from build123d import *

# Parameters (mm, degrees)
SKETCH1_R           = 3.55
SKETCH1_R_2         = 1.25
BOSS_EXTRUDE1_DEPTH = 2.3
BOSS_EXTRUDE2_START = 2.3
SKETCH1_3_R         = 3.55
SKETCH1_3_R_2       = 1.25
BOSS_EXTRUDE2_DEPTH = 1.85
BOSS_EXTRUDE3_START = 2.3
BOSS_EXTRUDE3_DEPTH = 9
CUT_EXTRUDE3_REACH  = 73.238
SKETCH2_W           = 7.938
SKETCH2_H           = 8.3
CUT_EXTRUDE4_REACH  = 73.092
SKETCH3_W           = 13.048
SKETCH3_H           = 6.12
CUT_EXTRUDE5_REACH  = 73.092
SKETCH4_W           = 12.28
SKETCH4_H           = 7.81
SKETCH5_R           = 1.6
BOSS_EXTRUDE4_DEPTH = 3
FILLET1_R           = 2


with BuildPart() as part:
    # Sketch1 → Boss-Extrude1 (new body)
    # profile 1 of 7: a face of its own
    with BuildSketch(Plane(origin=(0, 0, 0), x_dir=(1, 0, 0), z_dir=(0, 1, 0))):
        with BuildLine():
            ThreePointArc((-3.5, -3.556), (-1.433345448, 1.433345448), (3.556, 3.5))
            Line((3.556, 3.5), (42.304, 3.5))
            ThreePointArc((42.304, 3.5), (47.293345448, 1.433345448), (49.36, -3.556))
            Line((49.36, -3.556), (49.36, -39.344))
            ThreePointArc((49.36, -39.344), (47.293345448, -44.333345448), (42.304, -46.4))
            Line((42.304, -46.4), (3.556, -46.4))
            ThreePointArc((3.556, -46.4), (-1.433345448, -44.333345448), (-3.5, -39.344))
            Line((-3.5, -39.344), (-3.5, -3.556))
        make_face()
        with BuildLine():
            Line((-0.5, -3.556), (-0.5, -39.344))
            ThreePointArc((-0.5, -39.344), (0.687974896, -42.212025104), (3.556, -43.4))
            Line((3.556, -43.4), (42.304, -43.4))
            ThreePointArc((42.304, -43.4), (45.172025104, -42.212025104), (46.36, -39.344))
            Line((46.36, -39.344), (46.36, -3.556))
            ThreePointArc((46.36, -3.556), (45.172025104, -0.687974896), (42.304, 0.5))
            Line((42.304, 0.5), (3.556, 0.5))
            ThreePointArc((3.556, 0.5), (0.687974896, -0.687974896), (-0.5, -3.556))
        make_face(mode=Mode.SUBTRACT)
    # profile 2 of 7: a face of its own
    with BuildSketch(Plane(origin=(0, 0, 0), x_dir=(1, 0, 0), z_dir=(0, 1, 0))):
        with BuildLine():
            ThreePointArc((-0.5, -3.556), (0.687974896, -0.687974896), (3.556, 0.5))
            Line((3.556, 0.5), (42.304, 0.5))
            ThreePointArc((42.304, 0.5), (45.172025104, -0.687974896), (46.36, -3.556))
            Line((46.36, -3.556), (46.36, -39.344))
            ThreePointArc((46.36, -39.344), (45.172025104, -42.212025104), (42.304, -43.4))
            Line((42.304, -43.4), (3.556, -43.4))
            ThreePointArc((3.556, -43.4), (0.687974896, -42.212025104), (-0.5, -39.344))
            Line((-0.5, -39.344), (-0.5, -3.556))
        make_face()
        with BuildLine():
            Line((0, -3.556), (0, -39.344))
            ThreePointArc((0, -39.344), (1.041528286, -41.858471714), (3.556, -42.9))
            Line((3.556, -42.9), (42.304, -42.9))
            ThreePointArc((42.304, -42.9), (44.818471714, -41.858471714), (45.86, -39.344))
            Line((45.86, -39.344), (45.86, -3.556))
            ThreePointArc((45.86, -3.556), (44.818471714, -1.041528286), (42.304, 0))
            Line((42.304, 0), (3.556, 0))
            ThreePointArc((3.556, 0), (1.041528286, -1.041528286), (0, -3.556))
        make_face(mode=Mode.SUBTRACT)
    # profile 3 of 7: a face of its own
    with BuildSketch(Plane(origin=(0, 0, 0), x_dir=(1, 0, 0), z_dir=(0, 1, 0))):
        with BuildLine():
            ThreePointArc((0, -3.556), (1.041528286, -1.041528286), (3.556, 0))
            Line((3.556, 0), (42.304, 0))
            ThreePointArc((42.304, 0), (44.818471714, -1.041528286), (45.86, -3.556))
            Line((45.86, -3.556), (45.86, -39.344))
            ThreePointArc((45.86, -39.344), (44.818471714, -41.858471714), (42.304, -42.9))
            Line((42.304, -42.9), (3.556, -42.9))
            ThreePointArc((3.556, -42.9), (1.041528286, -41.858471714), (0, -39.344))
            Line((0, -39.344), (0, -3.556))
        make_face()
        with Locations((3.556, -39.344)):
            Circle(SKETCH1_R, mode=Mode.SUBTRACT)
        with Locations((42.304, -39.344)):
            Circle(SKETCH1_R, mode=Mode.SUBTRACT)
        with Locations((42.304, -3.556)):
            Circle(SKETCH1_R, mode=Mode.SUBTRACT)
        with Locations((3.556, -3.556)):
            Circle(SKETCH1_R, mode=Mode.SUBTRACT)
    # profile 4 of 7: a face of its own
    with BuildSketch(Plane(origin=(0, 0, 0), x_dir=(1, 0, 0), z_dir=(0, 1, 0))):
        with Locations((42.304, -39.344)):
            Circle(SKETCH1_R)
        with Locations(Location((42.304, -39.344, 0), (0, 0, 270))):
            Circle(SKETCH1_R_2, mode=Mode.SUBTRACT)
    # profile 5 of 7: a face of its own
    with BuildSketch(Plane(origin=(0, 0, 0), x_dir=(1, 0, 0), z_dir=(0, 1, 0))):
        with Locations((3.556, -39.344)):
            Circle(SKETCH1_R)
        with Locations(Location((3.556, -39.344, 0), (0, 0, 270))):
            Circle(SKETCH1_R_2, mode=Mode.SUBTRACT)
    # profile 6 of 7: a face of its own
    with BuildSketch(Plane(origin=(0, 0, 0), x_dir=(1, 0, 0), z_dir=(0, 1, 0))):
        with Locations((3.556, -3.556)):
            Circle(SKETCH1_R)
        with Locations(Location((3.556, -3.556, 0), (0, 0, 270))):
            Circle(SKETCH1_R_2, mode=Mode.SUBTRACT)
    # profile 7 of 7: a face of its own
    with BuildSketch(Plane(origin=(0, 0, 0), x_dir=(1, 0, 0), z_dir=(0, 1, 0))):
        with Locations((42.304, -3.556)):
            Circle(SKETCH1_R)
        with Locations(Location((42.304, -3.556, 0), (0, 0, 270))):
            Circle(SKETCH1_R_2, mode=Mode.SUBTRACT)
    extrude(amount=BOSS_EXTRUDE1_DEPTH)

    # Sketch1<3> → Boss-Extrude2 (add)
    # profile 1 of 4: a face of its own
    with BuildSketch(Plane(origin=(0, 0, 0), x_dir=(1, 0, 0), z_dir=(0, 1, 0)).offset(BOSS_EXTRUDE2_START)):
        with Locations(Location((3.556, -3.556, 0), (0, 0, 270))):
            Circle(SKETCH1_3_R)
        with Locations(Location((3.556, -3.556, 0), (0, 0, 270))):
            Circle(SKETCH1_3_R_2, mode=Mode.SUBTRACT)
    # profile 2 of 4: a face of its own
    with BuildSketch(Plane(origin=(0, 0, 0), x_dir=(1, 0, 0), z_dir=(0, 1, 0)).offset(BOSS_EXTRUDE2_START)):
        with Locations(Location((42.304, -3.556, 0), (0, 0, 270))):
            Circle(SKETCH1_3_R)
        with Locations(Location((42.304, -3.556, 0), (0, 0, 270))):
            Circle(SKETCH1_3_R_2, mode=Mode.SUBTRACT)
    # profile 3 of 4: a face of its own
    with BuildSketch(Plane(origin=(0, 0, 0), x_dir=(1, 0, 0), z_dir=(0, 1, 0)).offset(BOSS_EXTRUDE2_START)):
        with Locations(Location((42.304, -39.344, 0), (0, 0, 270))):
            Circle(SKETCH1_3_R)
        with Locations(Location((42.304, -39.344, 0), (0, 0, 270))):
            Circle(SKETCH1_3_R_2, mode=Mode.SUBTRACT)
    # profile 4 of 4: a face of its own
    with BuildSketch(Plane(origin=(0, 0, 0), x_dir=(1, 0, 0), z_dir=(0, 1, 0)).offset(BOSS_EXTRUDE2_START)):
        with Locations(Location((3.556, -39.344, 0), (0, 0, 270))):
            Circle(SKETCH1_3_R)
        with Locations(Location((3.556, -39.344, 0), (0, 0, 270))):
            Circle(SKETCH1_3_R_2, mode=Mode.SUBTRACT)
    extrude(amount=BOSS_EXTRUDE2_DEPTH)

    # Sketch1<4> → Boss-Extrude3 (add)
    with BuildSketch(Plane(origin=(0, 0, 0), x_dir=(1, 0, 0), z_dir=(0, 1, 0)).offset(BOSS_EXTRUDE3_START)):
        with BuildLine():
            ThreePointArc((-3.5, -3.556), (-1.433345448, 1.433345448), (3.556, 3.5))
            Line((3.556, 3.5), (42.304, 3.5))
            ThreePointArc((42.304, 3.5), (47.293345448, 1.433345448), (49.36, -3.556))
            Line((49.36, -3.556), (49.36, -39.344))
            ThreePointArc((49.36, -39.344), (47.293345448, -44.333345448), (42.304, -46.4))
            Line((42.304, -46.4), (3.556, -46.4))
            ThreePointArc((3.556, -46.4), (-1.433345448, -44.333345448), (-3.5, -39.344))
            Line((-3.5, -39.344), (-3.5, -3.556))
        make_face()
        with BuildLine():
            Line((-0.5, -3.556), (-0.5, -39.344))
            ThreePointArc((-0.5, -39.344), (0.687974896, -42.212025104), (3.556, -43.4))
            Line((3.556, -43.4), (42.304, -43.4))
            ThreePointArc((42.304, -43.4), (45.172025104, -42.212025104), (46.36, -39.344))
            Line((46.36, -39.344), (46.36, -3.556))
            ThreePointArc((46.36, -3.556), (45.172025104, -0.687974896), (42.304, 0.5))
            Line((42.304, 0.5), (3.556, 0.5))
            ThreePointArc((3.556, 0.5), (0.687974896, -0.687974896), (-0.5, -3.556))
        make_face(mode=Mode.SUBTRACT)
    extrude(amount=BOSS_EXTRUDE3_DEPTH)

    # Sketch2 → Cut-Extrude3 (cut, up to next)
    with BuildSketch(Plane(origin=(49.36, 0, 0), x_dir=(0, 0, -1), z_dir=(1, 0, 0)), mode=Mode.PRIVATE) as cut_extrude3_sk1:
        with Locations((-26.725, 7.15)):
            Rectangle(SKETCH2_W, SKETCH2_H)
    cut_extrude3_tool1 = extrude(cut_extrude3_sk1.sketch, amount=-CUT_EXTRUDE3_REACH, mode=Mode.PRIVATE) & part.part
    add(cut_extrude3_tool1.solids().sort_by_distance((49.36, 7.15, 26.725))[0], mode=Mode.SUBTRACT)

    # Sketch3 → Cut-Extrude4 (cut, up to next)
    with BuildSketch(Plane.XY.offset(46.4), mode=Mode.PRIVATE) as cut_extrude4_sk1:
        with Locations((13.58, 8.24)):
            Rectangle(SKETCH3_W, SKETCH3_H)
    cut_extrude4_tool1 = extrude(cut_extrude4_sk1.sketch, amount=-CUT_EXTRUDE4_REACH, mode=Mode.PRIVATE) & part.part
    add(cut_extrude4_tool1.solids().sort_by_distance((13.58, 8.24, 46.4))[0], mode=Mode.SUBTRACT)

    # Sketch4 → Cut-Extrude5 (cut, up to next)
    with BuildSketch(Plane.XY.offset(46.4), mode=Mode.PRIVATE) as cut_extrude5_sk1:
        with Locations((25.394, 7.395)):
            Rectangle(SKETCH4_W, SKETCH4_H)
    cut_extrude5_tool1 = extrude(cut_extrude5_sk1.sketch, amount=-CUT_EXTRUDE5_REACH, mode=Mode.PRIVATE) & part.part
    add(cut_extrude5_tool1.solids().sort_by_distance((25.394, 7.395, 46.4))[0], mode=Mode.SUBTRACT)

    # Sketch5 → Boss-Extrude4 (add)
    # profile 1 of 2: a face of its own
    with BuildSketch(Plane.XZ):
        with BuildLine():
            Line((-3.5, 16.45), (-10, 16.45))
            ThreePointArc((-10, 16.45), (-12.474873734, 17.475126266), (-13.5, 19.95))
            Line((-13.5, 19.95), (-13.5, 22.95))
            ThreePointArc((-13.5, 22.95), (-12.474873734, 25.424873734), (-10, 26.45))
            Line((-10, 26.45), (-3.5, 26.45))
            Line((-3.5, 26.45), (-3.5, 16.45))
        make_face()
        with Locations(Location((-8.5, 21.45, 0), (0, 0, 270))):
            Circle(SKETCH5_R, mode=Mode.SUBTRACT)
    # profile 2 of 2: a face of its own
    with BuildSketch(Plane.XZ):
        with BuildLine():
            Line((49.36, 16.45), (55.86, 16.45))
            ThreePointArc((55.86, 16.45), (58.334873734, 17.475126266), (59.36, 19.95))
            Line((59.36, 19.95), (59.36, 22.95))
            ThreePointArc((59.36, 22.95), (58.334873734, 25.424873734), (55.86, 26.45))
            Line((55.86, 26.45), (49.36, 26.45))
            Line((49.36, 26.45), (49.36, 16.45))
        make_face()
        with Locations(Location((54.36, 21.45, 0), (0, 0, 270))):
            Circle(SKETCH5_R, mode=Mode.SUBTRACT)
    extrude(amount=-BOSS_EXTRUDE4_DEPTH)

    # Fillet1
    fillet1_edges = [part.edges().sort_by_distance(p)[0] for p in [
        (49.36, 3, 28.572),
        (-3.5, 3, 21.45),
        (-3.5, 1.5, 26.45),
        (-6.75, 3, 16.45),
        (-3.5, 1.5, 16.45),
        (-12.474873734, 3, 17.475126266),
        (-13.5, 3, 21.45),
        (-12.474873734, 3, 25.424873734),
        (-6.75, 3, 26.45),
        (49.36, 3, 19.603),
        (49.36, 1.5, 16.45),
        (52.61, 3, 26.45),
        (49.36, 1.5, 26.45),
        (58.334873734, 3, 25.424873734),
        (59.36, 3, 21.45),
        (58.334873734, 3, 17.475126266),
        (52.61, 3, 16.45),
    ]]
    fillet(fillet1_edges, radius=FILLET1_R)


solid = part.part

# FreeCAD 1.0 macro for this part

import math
import FreeCAD as App
import Part
import Sketcher


def edges_at(feature, points):
    """Names of the edges that pass closest to the given points."""
    edges = feature.Shape.Edges
    near = lambda p: min(range(len(edges)), key=lambda i: edges[i].distToShape(Part.Vertex(*p))[0])
    return sorted({f"Edge{near(p) + 1}" for p in points})

doc = App.newDocument("Part")
body = doc.addObject("PartDesign::Body", "Body")

# Sketch on XZ plane
sketch1 = body.newObject("Sketcher::SketchObject", "Sketch")
sketch1.AttachmentSupport = (doc.getObject("XZ_Plane"), [""])
sketch1.MapMode = "FlatFace"
sketch1.addGeometry([
    Part.ArcOfCircle(Part.Circle(App.Vector(3.556, 3.556, 0), App.Vector(0, 0, 1), 7.056), math.radians(180), math.radians(270)),  # 0
    Part.LineSegment(App.Vector(-3.5, 3.556, 0), App.Vector(-3.5, 39.344, 0)),  # 1
    Part.ArcOfCircle(Part.Circle(App.Vector(3.556, 39.344, 0), App.Vector(0, 0, 1), 7.056), math.radians(90), math.radians(180)),  # 2
    Part.LineSegment(App.Vector(3.556, 46.4, 0), App.Vector(42.304, 46.4, 0)),  # 3
    Part.ArcOfCircle(Part.Circle(App.Vector(42.304, 39.344, 0), App.Vector(0, 0, 1), 7.056), math.radians(0), math.radians(90)),  # 4
    Part.LineSegment(App.Vector(49.36, 39.344, 0), App.Vector(49.36, 3.556, 0)),  # 5
    Part.ArcOfCircle(Part.Circle(App.Vector(42.304, 3.556, 0), App.Vector(0, 0, 1), 7.056), math.radians(-90), math.radians(0)),  # 6
    Part.LineSegment(App.Vector(42.304, -3.5, 0), App.Vector(3.556, -3.5, 0)),  # 7
    Part.Circle(App.Vector(42.304, 3.556, 0), App.Vector(0, 0, 1), 1.25),  # 8
    Part.Circle(App.Vector(3.556, 3.556, 0), App.Vector(0, 0, 1), 1.25),  # 9
    Part.Circle(App.Vector(42.304, 39.344, 0), App.Vector(0, 0, 1), 1.25),  # 10
    Part.Circle(App.Vector(3.556, 39.344, 0), App.Vector(0, 0, 1), 1.25),  # 11
], False)
sketch1.addConstraint([
    Sketcher.Constraint("Tangent", 0, 1, 1, 1),
    Sketcher.Constraint("Tangent", 1, 2, 2, 2),
    Sketcher.Constraint("Tangent", 2, 1, 3, 1),
    Sketcher.Constraint("Tangent", 3, 2, 4, 2),
    Sketcher.Constraint("Tangent", 4, 1, 5, 1),
    Sketcher.Constraint("Tangent", 5, 2, 6, 2),
    Sketcher.Constraint("Tangent", 6, 1, 7, 1),
    Sketcher.Constraint("Tangent", 7, 2, 0, 2),
    Sketcher.Constraint("Vertical", 1),
    Sketcher.Constraint("Horizontal", 3),
    Sketcher.Constraint("Vertical", 5),
    Sketcher.Constraint("Horizontal", 7),
    Sketcher.Constraint("Coincident", 8, 3, 6, 3),
    Sketcher.Constraint("Coincident", 9, 3, 0, 3),
    Sketcher.Constraint("Coincident", 10, 3, 4, 3),
    Sketcher.Constraint("Coincident", 11, 3, 2, 3),
    Sketcher.Constraint("Equal", 0, 2),
    Sketcher.Constraint("Equal", 2, 4),
    Sketcher.Constraint("Equal", 4, 6),
    Sketcher.Constraint("Equal", 8, 9),
    Sketcher.Constraint("Equal", 9, 10),
    Sketcher.Constraint("Equal", 10, 11),
    Sketcher.Constraint("Diameter", 8, 2.5),
    Sketcher.Constraint("Radius", 0, 7.056),
    Sketcher.Constraint("DistanceX", 0, 1, -1, 1, 3.5),
    Sketcher.Constraint("DistanceY", -1, 1, 2, 1, 46.4),
    Sketcher.Constraint("DistanceY", 6, 1, -1, 1, 3.5),
    Sketcher.Constraint("DistanceX", 3, 1, 3, 2, 38.748),
])
pad1 = body.newObject("PartDesign::Pad", "Pad")
pad1.Profile = sketch1
pad1.Length = 2.3
pad1.Reversed = True

# Sketch on XZ plane
sketch2 = body.newObject("Sketcher::SketchObject", "Sketch001")
sketch2.AttachmentSupport = (doc.getObject("XZ_Plane"), [""])
sketch2.MapMode = "FlatFace"
sketch2.AttachmentOffset = App.Placement(App.Vector(0, 0, -2.3), App.Rotation())
sketch2.addGeometry([
    Part.Circle(App.Vector(3.556, 3.556, 0), App.Vector(0, 0, 1), 3.55),  # 0
    Part.Circle(App.Vector(3.556, 3.556, 0), App.Vector(0, 0, 1), 1.25),  # 1
    Part.Circle(App.Vector(42.304, 3.556, 0), App.Vector(0, 0, 1), 3.55),  # 2
    Part.Circle(App.Vector(42.304, 3.556, 0), App.Vector(0, 0, 1), 1.25),  # 3
    Part.Circle(App.Vector(42.304, 39.344, 0), App.Vector(0, 0, 1), 3.55),  # 4
    Part.Circle(App.Vector(42.304, 39.344, 0), App.Vector(0, 0, 1), 1.25),  # 5
    Part.Circle(App.Vector(3.556, 39.344, 0), App.Vector(0, 0, 1), 3.55),  # 6
    Part.Circle(App.Vector(3.556, 39.344, 0), App.Vector(0, 0, 1), 1.25),  # 7
], False)
sketch2.addConstraint([
    Sketcher.Constraint("Coincident", 1, 3, 0, 3),
    Sketcher.Constraint("Coincident", 3, 3, 2, 3),
    Sketcher.Constraint("Coincident", 5, 3, 4, 3),
    Sketcher.Constraint("Coincident", 7, 3, 6, 3),
    Sketcher.Constraint("Equal", 0, 2),
    Sketcher.Constraint("Equal", 1, 3),
    Sketcher.Constraint("Equal", 2, 4),
    Sketcher.Constraint("Equal", 3, 5),
    Sketcher.Constraint("Equal", 4, 6),
    Sketcher.Constraint("Equal", 5, 7),
    Sketcher.Constraint("Horizontal", 1, 3, 2, 3),
    Sketcher.Constraint("Horizontal", 5, 3, 6, 3),
    Sketcher.Constraint("Vertical", 3, 3, 4, 3),
    Sketcher.Constraint("Vertical", 1, 3, 6, 3),
    Sketcher.Constraint("Diameter", 0, 7.1),
    Sketcher.Constraint("Diameter", 1, 2.5),
    Sketcher.Constraint("DistanceX", -1, 1, 0, 3, 3.556),
    Sketcher.Constraint("DistanceY", -1, 1, 0, 3, 3.556),
    Sketcher.Constraint("DistanceX", -1, 1, 2, 3, 42.304),
    Sketcher.Constraint("DistanceY", -1, 1, 4, 3, 39.344),
])
pad2 = body.newObject("PartDesign::Pad", "Pad001")
pad2.Profile = sketch2
pad2.Length = 1.85
pad2.Reversed = True

# Sketch on XZ plane
sketch3 = body.newObject("Sketcher::SketchObject", "Sketch002")
sketch3.AttachmentSupport = (doc.getObject("XZ_Plane"), [""])
sketch3.MapMode = "FlatFace"
sketch3.AttachmentOffset = App.Placement(App.Vector(0, 0, -2.3), App.Rotation())
sketch3.addGeometry([
    Part.ArcOfCircle(Part.Circle(App.Vector(3.556, 3.556, 0), App.Vector(0, 0, 1), 7.056), math.radians(180), math.radians(270)),  # 0
    Part.LineSegment(App.Vector(-3.5, 3.556, 0), App.Vector(-3.5, 39.344, 0)),  # 1
    Part.ArcOfCircle(Part.Circle(App.Vector(3.556, 39.344, 0), App.Vector(0, 0, 1), 7.056), math.radians(90), math.radians(180)),  # 2
    Part.LineSegment(App.Vector(3.556, 46.4, 0), App.Vector(42.304, 46.4, 0)),  # 3
    Part.ArcOfCircle(Part.Circle(App.Vector(42.304, 39.344, 0), App.Vector(0, 0, 1), 7.056), math.radians(0), math.radians(90)),  # 4
    Part.LineSegment(App.Vector(49.36, 39.344, 0), App.Vector(49.36, 3.556, 0)),  # 5
    Part.ArcOfCircle(Part.Circle(App.Vector(42.304, 3.556, 0), App.Vector(0, 0, 1), 7.056), math.radians(-90), math.radians(0)),  # 6
    Part.LineSegment(App.Vector(42.304, -3.5, 0), App.Vector(3.556, -3.5, 0)),  # 7
    Part.ArcOfCircle(Part.Circle(App.Vector(3.556, 3.556, 0), App.Vector(0, 0, 1), 4.056), math.radians(-180), math.radians(-90)),  # 8
    Part.LineSegment(App.Vector(3.556, -0.5, 0), App.Vector(42.304, -0.5, 0)),  # 9
    Part.ArcOfCircle(Part.Circle(App.Vector(42.304, 3.556, 0), App.Vector(0, 0, 1), 4.056), math.radians(-90), math.radians(0)),  # 10
    Part.LineSegment(App.Vector(46.36, 3.556, 0), App.Vector(46.36, 39.344, 0)),  # 11
    Part.ArcOfCircle(Part.Circle(App.Vector(42.304, 39.344, 0), App.Vector(0, 0, 1), 4.056), math.radians(0), math.radians(90)),  # 12
    Part.LineSegment(App.Vector(42.304, 43.4, 0), App.Vector(3.556, 43.4, 0)),  # 13
    Part.ArcOfCircle(Part.Circle(App.Vector(3.556, 39.344, 0), App.Vector(0, 0, 1), 4.056), math.radians(90), math.radians(180)),  # 14
    Part.LineSegment(App.Vector(-0.5, 39.344, 0), App.Vector(-0.5, 3.556, 0)),  # 15
], False)
sketch3.addConstraint([
    Sketcher.Constraint("Tangent", 0, 1, 1, 1),
    Sketcher.Constraint("Tangent", 1, 2, 2, 2),
    Sketcher.Constraint("Tangent", 2, 1, 3, 1),
    Sketcher.Constraint("Tangent", 3, 2, 4, 2),
    Sketcher.Constraint("Tangent", 4, 1, 5, 1),
    Sketcher.Constraint("Tangent", 5, 2, 6, 2),
    Sketcher.Constraint("Tangent", 6, 1, 7, 1),
    Sketcher.Constraint("Tangent", 7, 2, 0, 2),
    Sketcher.Constraint("Tangent", 8, 2, 9, 1),
    Sketcher.Constraint("Tangent", 9, 2, 10, 1),
    Sketcher.Constraint("Tangent", 10, 2, 11, 1),
    Sketcher.Constraint("Tangent", 11, 2, 12, 1),
    Sketcher.Constraint("Tangent", 12, 2, 13, 1),
    Sketcher.Constraint("Tangent", 13, 2, 14, 1),
    Sketcher.Constraint("Tangent", 14, 2, 15, 1),
    Sketcher.Constraint("Tangent", 15, 2, 8, 1),
    Sketcher.Constraint("Vertical", 1),
    Sketcher.Constraint("Horizontal", 3),
    Sketcher.Constraint("Vertical", 5),
    Sketcher.Constraint("Horizontal", 7),
    Sketcher.Constraint("Horizontal", 9),
    Sketcher.Constraint("Vertical", 11),
    Sketcher.Constraint("Horizontal", 13),
    Sketcher.Constraint("Vertical", 15),
    Sketcher.Constraint("Coincident", 8, 3, 0, 3),
    Sketcher.Constraint("Coincident", 10, 3, 6, 3),
    Sketcher.Constraint("Coincident", 12, 3, 4, 3),
    Sketcher.Constraint("Equal", 0, 2),
    Sketcher.Constraint("Equal", 2, 4),
    Sketcher.Constraint("Equal", 4, 6),
    Sketcher.Constraint("Equal", 12, 14),
    Sketcher.Constraint("Radius", 0, 7.056),
    Sketcher.Constraint("Radius", 8, 4.056),
    Sketcher.Constraint("DistanceX", 0, 1, -1, 1, 3.5),
    Sketcher.Constraint("DistanceY", -1, 1, 2, 1, 46.4),
    Sketcher.Constraint("DistanceY", 6, 1, -1, 1, 3.5),
    Sketcher.Constraint("DistanceX", 3, 1, 3, 2, 38.748),
])
pad3 = body.newObject("PartDesign::Pad", "Pad002")
pad3.Profile = sketch3
pad3.Length = 9
pad3.Reversed = True

# Sketch on YZ plane
sketch4 = body.newObject("Sketcher::SketchObject", "Sketch003")
sketch4.AttachmentSupport = (doc.getObject("YZ_Plane"), [""])
sketch4.MapMode = "FlatFace"
sketch4.AttachmentOffset = App.Placement(App.Vector(0, 0, 49.36), App.Rotation())
sketch4.addGeometry([
    Part.LineSegment(App.Vector(11.3, 30.694, 0), App.Vector(3, 30.694, 0)),
    Part.LineSegment(App.Vector(3, 30.694, 0), App.Vector(3, 22.756, 0)),
    Part.LineSegment(App.Vector(3, 22.756, 0), App.Vector(11.3, 22.756, 0)),
    Part.LineSegment(App.Vector(11.3, 22.756, 0), App.Vector(11.3, 30.694, 0)),
], False)
sketch4.addConstraint([
    Sketcher.Constraint("Coincident", 0, 2, 1, 1),
    Sketcher.Constraint("Coincident", 1, 2, 2, 1),
    Sketcher.Constraint("Coincident", 2, 2, 3, 1),
    Sketcher.Constraint("Coincident", 3, 2, 0, 1),
    Sketcher.Constraint("Horizontal", 0),
    Sketcher.Constraint("Vertical", 1),
    Sketcher.Constraint("Horizontal", 2),
    Sketcher.Constraint("Vertical", 3),
    Sketcher.Constraint("DistanceX", 0, 2, 0, 1, 8.3),
    Sketcher.Constraint("DistanceX", -1, 1, 0, 2, 3.0),
    Sketcher.Constraint("DistanceY", 1, 2, 1, 1, 7.938),
    Sketcher.Constraint("DistanceY", -1, 1, 0, 2, 30.694),
])
pocket1 = body.newObject("PartDesign::Pocket", "Pocket")
pocket1.Profile = sketch4
pocket1.Type = "UpToFirst"

# Sketch on XY plane
sketch5 = body.newObject("Sketcher::SketchObject", "Sketch004")
sketch5.AttachmentSupport = (doc.getObject("XY_Plane"), [""])
sketch5.MapMode = "FlatFace"
sketch5.AttachmentOffset = App.Placement(App.Vector(0, 0, 46.4), App.Rotation())
sketch5.addGeometry([
    Part.LineSegment(App.Vector(7.056, 11.3, 0), App.Vector(7.056, 5.18, 0)),
    Part.LineSegment(App.Vector(7.056, 5.18, 0), App.Vector(20.104, 5.18, 0)),
    Part.LineSegment(App.Vector(20.104, 5.18, 0), App.Vector(20.104, 11.3, 0)),
    Part.LineSegment(App.Vector(20.104, 11.3, 0), App.Vector(7.056, 11.3, 0)),
], False)
sketch5.addConstraint([
    Sketcher.Constraint("Coincident", 0, 2, 1, 1),
    Sketcher.Constraint("Coincident", 1, 2, 2, 1),
    Sketcher.Constraint("Coincident", 2, 2, 3, 1),
    Sketcher.Constraint("Coincident", 3, 2, 0, 1),
    Sketcher.Constraint("Vertical", 0),
    Sketcher.Constraint("Horizontal", 1),
    Sketcher.Constraint("Vertical", 2),
    Sketcher.Constraint("Horizontal", 3),
    Sketcher.Constraint("DistanceY", 0, 2, 0, 1, 6.12),
    Sketcher.Constraint("DistanceY", -1, 1, 2, 2, 11.3),
    Sketcher.Constraint("DistanceX", 1, 1, 1, 2, 13.048),
    Sketcher.Constraint("DistanceX", -1, 1, 0, 2, 7.056),
])
pocket2 = body.newObject("PartDesign::Pocket", "Pocket001")
pocket2.Profile = sketch5
pocket2.Type = "UpToFirst"

# Sketch on XY plane
sketch6 = body.newObject("Sketcher::SketchObject", "Sketch005")
sketch6.AttachmentSupport = (doc.getObject("XY_Plane"), [""])
sketch6.MapMode = "FlatFace"
sketch6.AttachmentOffset = App.Placement(App.Vector(0, 0, 46.4), App.Rotation())
sketch6.addGeometry([
    Part.LineSegment(App.Vector(19.254, 11.3, 0), App.Vector(19.254, 3.49, 0)),
    Part.LineSegment(App.Vector(19.254, 3.49, 0), App.Vector(31.534, 3.49, 0)),
    Part.LineSegment(App.Vector(31.534, 3.49, 0), App.Vector(31.534, 11.3, 0)),
    Part.LineSegment(App.Vector(31.534, 11.3, 0), App.Vector(19.254, 11.3, 0)),
], False)
sketch6.addConstraint([
    Sketcher.Constraint("Coincident", 0, 2, 1, 1),
    Sketcher.Constraint("Coincident", 1, 2, 2, 1),
    Sketcher.Constraint("Coincident", 2, 2, 3, 1),
    Sketcher.Constraint("Coincident", 3, 2, 0, 1),
    Sketcher.Constraint("Vertical", 0),
    Sketcher.Constraint("Horizontal", 1),
    Sketcher.Constraint("Vertical", 2),
    Sketcher.Constraint("Horizontal", 3),
    Sketcher.Constraint("DistanceX", 1, 1, 1, 2, 12.28),
    Sketcher.Constraint("DistanceY", 0, 2, 0, 1, 7.81),
    Sketcher.Constraint("DistanceY", -1, 1, 2, 2, 11.3),
    Sketcher.Constraint("DistanceX", -1, 1, 0, 2, 19.254),
])
pocket3 = body.newObject("PartDesign::Pocket", "Pocket002")
pocket3.Profile = sketch6
pocket3.Type = "UpToFirst"

# Sketch on XZ plane
sketch7 = body.newObject("Sketcher::SketchObject", "Sketch006")
sketch7.AttachmentSupport = (doc.getObject("XZ_Plane"), [""])
sketch7.MapMode = "FlatFace"
sketch7.addGeometry([
    Part.LineSegment(App.Vector(-10, 16.45, 0), App.Vector(-3.5, 16.45, 0)),  # 0
    Part.LineSegment(App.Vector(-3.5, 16.45, 0), App.Vector(-3.5, 26.45, 0)),  # 1
    Part.LineSegment(App.Vector(-3.5, 26.45, 0), App.Vector(-10, 26.45, 0)),  # 2
    Part.ArcOfCircle(Part.Circle(App.Vector(-10, 22.95, 0), App.Vector(0, 0, 1), 3.5), math.radians(90), math.radians(180)),  # 3
    Part.LineSegment(App.Vector(-13.5, 22.95, 0), App.Vector(-13.5, 19.95, 0)),  # 4
    Part.ArcOfCircle(Part.Circle(App.Vector(-10, 19.95, 0), App.Vector(0, 0, 1), 3.5), math.radians(-180), math.radians(-90)),  # 5
    Part.Circle(App.Vector(-8.5, 21.45, 0), App.Vector(0, 0, 1), 1.6),  # 6
    Part.LineSegment(App.Vector(49.36, 16.45, 0), App.Vector(55.86, 16.45, 0)),  # 7
    Part.ArcOfCircle(Part.Circle(App.Vector(55.86, 19.95, 0), App.Vector(0, 0, 1), 3.5), math.radians(-90), math.radians(0)),  # 8
    Part.LineSegment(App.Vector(59.36, 19.95, 0), App.Vector(59.36, 22.95, 0)),  # 9
    Part.ArcOfCircle(Part.Circle(App.Vector(55.86, 22.95, 0), App.Vector(0, 0, 1), 3.5), math.radians(0), math.radians(90)),  # 10
    Part.LineSegment(App.Vector(55.86, 26.45, 0), App.Vector(49.36, 26.45, 0)),  # 11
    Part.LineSegment(App.Vector(49.36, 26.45, 0), App.Vector(49.36, 16.45, 0)),  # 12
    Part.Circle(App.Vector(54.36, 21.45, 0), App.Vector(0, 0, 1), 1.6),  # 13
], False)
sketch7.addConstraint([
    Sketcher.Constraint("Coincident", 0, 2, 1, 1),
    Sketcher.Constraint("Coincident", 1, 2, 2, 1),
    Sketcher.Constraint("Tangent", 2, 2, 3, 1),
    Sketcher.Constraint("Tangent", 3, 2, 4, 1),
    Sketcher.Constraint("Tangent", 4, 2, 5, 1),
    Sketcher.Constraint("Tangent", 5, 2, 0, 1),
    Sketcher.Constraint("Tangent", 7, 2, 8, 1),
    Sketcher.Constraint("Tangent", 8, 2, 9, 1),
    Sketcher.Constraint("Tangent", 9, 2, 10, 1),
    Sketcher.Constraint("Tangent", 10, 2, 11, 1),
    Sketcher.Constraint("Coincident", 11, 2, 12, 1),
    Sketcher.Constraint("Coincident", 12, 2, 7, 1),
    Sketcher.Constraint("Horizontal", 0),
    Sketcher.Constraint("Vertical", 1),
    Sketcher.Constraint("Horizontal", 2),
    Sketcher.Constraint("Vertical", 4),
    Sketcher.Constraint("Horizontal", 7),
    Sketcher.Constraint("Vertical", 9),
    Sketcher.Constraint("Horizontal", 11),
    Sketcher.Constraint("Vertical", 12),
    Sketcher.Constraint("Equal", 3, 5),
    Sketcher.Constraint("Equal", 5, 8),
    Sketcher.Constraint("Equal", 8, 10),
    Sketcher.Constraint("Equal", 6, 13),
    Sketcher.Constraint("Horizontal", 5, 3, 8, 3),
    Sketcher.Constraint("Horizontal", 3, 3, 10, 3),
    Sketcher.Constraint("Horizontal", 6, 3, 13, 3),
    Sketcher.Constraint("Equal", 2, 7),
    Sketcher.Constraint("Diameter", 6, 3.2),
    Sketcher.Constraint("Radius", 3, 3.5),
    Sketcher.Constraint("DistanceY", 1, 1, 1, 2, 10.0),
    Sketcher.Constraint("DistanceX", 0, 1, 0, 2, 6.5),
    Sketcher.Constraint("DistanceX", 3, 3, -1, 1, 10.0),
    Sketcher.Constraint("DistanceX", 6, 3, 0, 2, 5.0),
    Sketcher.Constraint("DistanceY", 0, 2, 6, 3, 5.0),
    Sketcher.Constraint("DistanceX", 13, 3, 8, 2, 5.0),
    Sketcher.Constraint("DistanceY", -1, 1, 3, 3, 22.95),
    Sketcher.Constraint("DistanceX", -1, 1, 8, 3, 55.86),
])
pad4 = body.newObject("PartDesign::Pad", "Pad003")
pad4.Profile = sketch7
pad4.Length = 3
pad4.Reversed = True
doc.recompute()

fillet = body.newObject("PartDesign::Fillet", "Fillet")
fillet.Base = (pad4, edges_at(pad4, [
    (49.36, 3, 28.572),
    (-3.5, 3, 21.45),
    (-3.5, 1.5, 26.45),
    (-6.75, 3, 16.45),
    (-3.5, 1.5, 16.45),
    (-12.475, 3, 17.475),
    (-13.5, 3, 21.45),
    (-12.475, 3, 25.425),
    (-6.75, 3, 26.45),
    (49.36, 3, 19.603),
    (49.36, 1.5, 16.45),
    (52.61, 3, 26.45),
    (49.36, 1.5, 26.45),
    (58.335, 3, 25.425),
    (59.36, 3, 21.45),
    (58.335, 3, 17.475),
    (52.61, 3, 16.45),
]))
fillet.Radius = 2

doc.recompute()
